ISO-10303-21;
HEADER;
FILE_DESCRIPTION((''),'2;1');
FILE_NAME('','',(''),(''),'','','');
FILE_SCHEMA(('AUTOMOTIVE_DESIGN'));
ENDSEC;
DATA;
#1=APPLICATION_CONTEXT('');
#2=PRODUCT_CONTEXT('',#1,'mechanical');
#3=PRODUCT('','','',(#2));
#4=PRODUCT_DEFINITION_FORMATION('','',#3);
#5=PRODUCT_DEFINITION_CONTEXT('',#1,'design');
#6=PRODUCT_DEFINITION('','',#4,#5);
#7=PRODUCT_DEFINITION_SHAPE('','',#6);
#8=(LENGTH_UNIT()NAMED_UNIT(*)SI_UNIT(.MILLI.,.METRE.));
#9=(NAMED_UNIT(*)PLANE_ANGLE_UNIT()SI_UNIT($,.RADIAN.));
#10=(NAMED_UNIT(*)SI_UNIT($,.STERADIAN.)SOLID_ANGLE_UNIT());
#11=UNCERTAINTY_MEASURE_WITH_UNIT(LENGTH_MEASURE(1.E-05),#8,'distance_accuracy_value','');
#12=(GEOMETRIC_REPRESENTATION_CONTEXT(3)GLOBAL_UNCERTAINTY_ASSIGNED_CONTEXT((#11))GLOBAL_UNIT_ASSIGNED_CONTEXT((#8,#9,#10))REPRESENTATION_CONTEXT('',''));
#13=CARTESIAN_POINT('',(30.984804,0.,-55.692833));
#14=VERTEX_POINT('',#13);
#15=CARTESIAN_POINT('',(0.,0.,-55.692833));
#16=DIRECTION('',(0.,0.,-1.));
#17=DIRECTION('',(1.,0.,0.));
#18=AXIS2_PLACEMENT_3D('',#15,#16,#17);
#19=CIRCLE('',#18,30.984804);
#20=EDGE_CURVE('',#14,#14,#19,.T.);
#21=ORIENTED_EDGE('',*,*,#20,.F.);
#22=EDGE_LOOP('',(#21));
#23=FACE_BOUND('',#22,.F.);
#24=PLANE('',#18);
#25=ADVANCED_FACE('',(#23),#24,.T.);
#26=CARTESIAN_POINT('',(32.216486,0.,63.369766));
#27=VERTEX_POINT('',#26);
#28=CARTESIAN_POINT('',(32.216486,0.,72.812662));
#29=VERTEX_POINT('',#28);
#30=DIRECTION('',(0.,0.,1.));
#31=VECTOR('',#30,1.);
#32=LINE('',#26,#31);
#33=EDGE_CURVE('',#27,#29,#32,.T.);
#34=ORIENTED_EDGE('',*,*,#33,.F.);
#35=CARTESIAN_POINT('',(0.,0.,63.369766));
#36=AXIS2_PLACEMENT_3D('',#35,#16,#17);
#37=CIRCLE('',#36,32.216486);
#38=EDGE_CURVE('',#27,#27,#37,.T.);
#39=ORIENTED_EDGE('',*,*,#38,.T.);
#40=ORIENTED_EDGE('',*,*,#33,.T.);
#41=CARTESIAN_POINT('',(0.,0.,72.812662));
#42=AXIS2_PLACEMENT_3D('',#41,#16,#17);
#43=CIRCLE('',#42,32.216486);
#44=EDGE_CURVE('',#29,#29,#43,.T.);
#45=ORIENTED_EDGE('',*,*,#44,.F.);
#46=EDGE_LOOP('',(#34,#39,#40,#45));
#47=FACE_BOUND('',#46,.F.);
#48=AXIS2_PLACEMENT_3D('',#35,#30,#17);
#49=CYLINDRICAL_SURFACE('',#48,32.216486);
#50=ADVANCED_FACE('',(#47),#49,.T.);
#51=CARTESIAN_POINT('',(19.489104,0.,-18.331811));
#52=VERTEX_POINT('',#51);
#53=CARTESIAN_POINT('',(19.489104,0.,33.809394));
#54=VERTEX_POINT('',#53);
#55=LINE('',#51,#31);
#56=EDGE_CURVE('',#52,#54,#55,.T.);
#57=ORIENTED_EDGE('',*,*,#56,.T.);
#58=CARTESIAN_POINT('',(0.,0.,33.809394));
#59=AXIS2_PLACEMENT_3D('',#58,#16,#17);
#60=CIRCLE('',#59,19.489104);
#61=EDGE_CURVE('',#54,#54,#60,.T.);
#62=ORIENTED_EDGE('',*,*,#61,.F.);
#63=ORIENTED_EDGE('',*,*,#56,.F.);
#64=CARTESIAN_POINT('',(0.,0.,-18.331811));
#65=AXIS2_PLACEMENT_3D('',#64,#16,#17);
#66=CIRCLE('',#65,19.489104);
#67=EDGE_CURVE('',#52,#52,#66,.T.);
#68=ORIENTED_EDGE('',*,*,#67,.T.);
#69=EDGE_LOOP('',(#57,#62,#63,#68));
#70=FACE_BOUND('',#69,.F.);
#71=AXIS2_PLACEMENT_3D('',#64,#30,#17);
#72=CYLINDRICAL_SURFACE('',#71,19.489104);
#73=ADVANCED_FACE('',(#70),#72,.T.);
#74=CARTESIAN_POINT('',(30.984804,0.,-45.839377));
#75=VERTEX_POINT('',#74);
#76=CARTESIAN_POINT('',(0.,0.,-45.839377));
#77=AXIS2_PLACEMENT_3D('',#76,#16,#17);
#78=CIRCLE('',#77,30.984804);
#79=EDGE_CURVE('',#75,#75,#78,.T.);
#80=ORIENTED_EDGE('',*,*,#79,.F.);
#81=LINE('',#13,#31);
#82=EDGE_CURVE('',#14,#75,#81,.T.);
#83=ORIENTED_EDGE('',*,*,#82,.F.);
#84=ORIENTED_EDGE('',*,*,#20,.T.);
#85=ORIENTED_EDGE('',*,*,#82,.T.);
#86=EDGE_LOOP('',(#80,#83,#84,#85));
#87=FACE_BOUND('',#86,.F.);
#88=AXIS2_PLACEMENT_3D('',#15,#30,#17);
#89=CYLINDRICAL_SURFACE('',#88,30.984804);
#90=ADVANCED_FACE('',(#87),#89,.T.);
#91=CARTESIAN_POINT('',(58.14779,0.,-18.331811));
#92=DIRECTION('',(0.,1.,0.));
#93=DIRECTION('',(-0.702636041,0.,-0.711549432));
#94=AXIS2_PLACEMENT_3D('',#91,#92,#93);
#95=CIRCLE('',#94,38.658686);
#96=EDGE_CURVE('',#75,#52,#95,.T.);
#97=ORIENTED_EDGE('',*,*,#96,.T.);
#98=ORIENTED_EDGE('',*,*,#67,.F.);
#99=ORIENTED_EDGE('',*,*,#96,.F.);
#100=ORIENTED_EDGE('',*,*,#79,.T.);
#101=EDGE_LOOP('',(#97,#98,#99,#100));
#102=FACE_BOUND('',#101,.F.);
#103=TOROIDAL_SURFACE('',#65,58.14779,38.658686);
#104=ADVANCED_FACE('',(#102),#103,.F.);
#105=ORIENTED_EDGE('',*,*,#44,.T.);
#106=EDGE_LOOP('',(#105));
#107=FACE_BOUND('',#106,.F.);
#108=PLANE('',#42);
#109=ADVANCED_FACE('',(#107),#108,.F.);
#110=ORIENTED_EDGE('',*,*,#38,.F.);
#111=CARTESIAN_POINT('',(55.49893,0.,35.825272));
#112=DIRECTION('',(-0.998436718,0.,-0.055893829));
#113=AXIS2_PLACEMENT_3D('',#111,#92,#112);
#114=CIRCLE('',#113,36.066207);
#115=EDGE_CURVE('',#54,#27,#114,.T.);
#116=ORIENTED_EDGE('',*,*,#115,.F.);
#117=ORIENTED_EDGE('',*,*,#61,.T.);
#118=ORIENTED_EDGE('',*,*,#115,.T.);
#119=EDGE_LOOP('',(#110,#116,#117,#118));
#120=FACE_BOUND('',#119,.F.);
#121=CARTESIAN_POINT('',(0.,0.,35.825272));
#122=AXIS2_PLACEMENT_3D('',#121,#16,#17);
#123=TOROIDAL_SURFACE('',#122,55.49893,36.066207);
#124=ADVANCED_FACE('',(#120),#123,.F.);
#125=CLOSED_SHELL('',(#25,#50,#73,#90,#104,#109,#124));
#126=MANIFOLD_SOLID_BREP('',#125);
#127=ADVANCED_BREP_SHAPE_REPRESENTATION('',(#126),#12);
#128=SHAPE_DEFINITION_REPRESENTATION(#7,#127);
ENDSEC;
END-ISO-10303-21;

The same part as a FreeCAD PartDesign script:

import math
import FreeCAD as App
import Part
import Sketcher
from FreeCAD import Vector
Q = App.Units.Quantity

doc = App.newDocument("Part")
body = doc.addObject("PartDesign::Body", "Body")

sketch1 = body.newObject("Sketcher::SketchObject", "Sketch")
sketch1.AttachmentSupport = (doc.getObject("XZ_Plane"), [""])
sketch1.MapMode = "FlatFace"
sketch1.addGeometry(Part.LineSegment(Vector(32, 73, 0), Vector(0, 73, 0)), False)
sketch1.addGeometry(Part.LineSegment(Vector(0, 73, 0), Vector(0, -56, 0)), False)
sketch1.addGeometry(Part.LineSegment(Vector(0, -56, 0), Vector(31, -56, 0)), False)
sketch1.addGeometry(Part.LineSegment(Vector(31, -56, 0), Vector(31, -46, 0)), False)
sketch1.addGeometry(Part.ArcOfCircle(Part.Circle(Vector(58, -18, 0), Vector(0, 0, 1), 39), math.radians(-180), math.radians(-135)), False)
sketch1.addGeometry(Part.LineSegment(Vector(19, -18, 0), Vector(19, 34, 0)), False)
sketch1.addGeometry(Part.ArcOfCircle(Part.Circle(Vector(55, 36, 0), Vector(0, 0, 1), 36), math.radians(130), math.radians(183)), False)
sketch1.addGeometry(Part.LineSegment(Vector(32, 63, 0), Vector(32, 73, 0)), False)
sketch1.addConstraint(Sketcher.Constraint("Coincident", 0, 2, 1, 1))
sketch1.addConstraint(Sketcher.Constraint("Coincident", 1, 2, 2, 1))
sketch1.addConstraint(Sketcher.Constraint("Coincident", 2, 2, 3, 1))
sketch1.addConstraint(Sketcher.Constraint("Coincident", 3, 2, 4, 2))
sketch1.addConstraint(Sketcher.Constraint("Tangent", 4, 1, 5, 1))
sketch1.addConstraint(Sketcher.Constraint("Coincident", 5, 2, 6, 2))
sketch1.addConstraint(Sketcher.Constraint("Coincident", 6, 1, 7, 1))
sketch1.addConstraint(Sketcher.Constraint("Coincident", 7, 2, 0, 1))
sketch1.addConstraint(Sketcher.Constraint("Horizontal", 0))
sketch1.addConstraint(Sketcher.Constraint("Vertical", 1))
sketch1.addConstraint(Sketcher.Constraint("Horizontal", 2))
sketch1.addConstraint(Sketcher.Constraint("Vertical", 3))
sketch1.addConstraint(Sketcher.Constraint("Vertical", 5))
sketch1.addConstraint(Sketcher.Constraint("Vertical", 7))
sketch1.addConstraint(Sketcher.Constraint("PointOnObject", 0, 2, -2))
sketch1.addConstraint(Sketcher.Constraint("Radius", 4, Q("38.658686 mm")))
sketch1.addConstraint(Sketcher.Constraint("Radius", 6, Q("36.066207 mm")))
sketch1.addConstraint(Sketcher.Constraint("DistanceX", 4, 1, 3, 2, Q("11.4957 mm")))
sketch1.addConstraint(Sketcher.Constraint("DistanceX", 0, 2, 0, 1, Q("32.216486 mm")))
sketch1.addConstraint(Sketcher.Constraint("DistanceX", 2, 1, 2, 2, Q("30.984804 mm")))
sketch1.addConstraint(Sketcher.Constraint("DistanceY", 1, 2, 1, 1, Q("128.505495 mm")))
sketch1.addConstraint(Sketcher.Constraint("DistanceY", 3, 1, 3, 2, Q("9.853456 mm")))
sketch1.addConstraint(Sketcher.Constraint("DistanceY", 5, 1, 5, 2, Q("52.141205 mm")))
sketch1.addConstraint(Sketcher.Constraint("DistanceY", 7, 1, 7, 2, Q("9.442896 mm")))
sketch1.addConstraint(Sketcher.Constraint("DistanceY", 4, 3, -1, 1, Q("18.331811 mm")))
revolution = body.newObject("PartDesign::Revolution", "Revolution")
revolution.Profile = sketch1
revolution.ReferenceAxis = (sketch1, ["V_Axis"])
revolution.Angle = 360

doc.recompute()
